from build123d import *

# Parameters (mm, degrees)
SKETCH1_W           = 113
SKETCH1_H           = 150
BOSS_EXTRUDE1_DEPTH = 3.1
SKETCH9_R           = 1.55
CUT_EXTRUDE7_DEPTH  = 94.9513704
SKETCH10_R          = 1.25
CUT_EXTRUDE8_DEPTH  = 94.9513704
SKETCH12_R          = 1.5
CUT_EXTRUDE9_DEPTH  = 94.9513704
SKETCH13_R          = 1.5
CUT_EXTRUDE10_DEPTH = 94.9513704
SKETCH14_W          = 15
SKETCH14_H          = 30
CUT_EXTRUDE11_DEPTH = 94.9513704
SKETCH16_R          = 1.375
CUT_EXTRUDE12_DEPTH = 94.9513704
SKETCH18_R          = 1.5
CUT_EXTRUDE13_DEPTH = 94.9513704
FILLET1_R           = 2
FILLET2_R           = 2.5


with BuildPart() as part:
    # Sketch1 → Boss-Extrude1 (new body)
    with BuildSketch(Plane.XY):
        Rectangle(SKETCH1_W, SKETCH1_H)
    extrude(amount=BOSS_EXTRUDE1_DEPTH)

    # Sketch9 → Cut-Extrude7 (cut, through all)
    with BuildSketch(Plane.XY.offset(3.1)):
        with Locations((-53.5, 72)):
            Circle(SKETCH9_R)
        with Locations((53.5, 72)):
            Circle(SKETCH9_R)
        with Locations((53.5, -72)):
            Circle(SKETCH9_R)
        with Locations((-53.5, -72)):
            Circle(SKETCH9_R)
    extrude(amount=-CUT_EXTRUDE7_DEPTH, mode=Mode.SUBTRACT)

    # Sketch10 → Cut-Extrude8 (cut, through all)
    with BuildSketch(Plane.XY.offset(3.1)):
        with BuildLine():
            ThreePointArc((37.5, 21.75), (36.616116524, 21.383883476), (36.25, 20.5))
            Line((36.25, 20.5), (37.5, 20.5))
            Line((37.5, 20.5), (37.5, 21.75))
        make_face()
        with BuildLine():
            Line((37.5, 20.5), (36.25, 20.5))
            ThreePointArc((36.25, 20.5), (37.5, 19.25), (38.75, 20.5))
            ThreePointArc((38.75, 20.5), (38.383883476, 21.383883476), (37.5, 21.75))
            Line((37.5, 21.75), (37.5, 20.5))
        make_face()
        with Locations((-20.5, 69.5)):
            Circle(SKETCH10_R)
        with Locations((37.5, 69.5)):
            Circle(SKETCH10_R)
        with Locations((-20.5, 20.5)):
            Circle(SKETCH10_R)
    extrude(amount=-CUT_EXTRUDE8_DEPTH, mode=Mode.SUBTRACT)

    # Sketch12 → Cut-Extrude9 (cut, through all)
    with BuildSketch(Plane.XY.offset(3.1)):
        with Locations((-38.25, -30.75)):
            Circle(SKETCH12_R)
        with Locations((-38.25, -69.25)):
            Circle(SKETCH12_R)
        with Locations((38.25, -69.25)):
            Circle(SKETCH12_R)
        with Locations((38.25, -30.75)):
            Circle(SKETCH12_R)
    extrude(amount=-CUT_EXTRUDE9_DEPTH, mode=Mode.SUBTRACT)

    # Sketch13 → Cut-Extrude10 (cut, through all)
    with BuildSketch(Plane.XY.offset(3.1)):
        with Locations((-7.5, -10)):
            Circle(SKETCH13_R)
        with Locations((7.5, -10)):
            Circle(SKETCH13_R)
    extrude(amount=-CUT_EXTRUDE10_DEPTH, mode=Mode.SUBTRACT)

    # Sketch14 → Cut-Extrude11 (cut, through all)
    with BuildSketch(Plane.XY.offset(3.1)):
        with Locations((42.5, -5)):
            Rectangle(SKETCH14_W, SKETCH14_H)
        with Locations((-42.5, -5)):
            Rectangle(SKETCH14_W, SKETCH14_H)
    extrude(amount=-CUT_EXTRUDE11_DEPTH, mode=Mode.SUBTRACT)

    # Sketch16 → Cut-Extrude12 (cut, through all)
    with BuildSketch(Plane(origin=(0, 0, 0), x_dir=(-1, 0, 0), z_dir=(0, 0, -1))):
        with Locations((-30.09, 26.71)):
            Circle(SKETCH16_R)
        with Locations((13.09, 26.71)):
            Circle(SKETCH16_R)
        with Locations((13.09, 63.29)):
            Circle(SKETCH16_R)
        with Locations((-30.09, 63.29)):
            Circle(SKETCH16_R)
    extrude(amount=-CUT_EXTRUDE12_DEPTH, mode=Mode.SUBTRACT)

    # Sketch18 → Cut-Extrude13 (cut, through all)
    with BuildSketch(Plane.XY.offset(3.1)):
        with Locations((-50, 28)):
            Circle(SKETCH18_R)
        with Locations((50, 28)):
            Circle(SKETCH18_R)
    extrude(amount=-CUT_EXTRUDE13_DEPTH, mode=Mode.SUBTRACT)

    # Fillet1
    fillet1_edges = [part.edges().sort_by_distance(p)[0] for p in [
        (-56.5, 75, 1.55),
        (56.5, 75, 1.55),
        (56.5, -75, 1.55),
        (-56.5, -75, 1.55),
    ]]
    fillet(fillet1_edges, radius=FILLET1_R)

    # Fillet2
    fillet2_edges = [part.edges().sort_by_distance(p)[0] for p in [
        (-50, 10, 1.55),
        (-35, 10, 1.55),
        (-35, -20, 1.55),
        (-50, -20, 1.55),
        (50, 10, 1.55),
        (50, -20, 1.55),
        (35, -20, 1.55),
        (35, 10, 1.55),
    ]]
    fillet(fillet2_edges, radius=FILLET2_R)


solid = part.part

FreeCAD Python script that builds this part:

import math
import FreeCAD as App
import Part
import Sketcher

V = App.Vector
Q = App.Units.Quantity


def edges_at(feature, points):
    """Names of the edges that pass closest to the given points."""
    edges = feature.Shape.Edges
    near = lambda p: min(range(len(edges)), key=lambda i: edges[i].distToShape(Part.Vertex(*p))[0])
    return sorted({f"Edge{near(p) + 1}" for p in points})

doc = App.newDocument("Part")
params = doc.addObject("Spreadsheet::Sheet", "Params")
for row, (alias, value) in enumerate([
    ("sketch1_width", "113 mm"),
    ("sketch1_height", "150 mm"),
    ("pad1_length", "3.1 mm"),
    ("sketch2_diameter", "3.1 mm"),
    ("sketch3_diameter", "2.5 mm"),
    ("sketch4_diameter", "3 mm"),
    ("sketch5_diameter", "3 mm"),
    ("sketch6_width", "15 mm"),
    ("sketch6_height", "30 mm"),
    ("sketch7_diameter", "2.75 mm"),
    ("sketch8_diameter", "3 mm"),
    ("fillet_radius", "2 mm"),
    ("fillet2_radius", "2.5 mm"),
], start=1):
    params.set(f"A{row}", alias)
    params.set(f"B{row}", "=" + value)
    params.setAlias(f"B{row}", alias)

body = doc.addObject("PartDesign::Body", "Body")

# Sketch on XY plane
sketch1 = body.newObject("Sketcher::SketchObject", "Sketch")
sketch1.AttachmentSupport = (doc.getObject("XY_Plane"), [""])
sketch1.MapMode = "FlatFace"
sketch1.addGeometry([
    Part.LineSegment(V(-56.5, 75, 0), V(-56.5, -75, 0)),
    Part.LineSegment(V(-56.5, -75, 0), V(56.5, -75, 0)),
    Part.LineSegment(V(56.5, -75, 0), V(56.5, 75, 0)),
    Part.LineSegment(V(56.5, 75, 0), V(-56.5, 75, 0)),
], False)
sketch1.addConstraint([
    Sketcher.Constraint("Coincident", 0, 2, 1, 1),
    Sketcher.Constraint("Coincident", 1, 2, 2, 1),
    Sketcher.Constraint("Coincident", 2, 2, 3, 1),
    Sketcher.Constraint("Coincident", 3, 2, 0, 1),
    Sketcher.Constraint("Vertical", 0),
    Sketcher.Constraint("Horizontal", 1),
    Sketcher.Constraint("Vertical", 2),
    Sketcher.Constraint("Horizontal", 3),
    Sketcher.Constraint("Symmetric", 0, 2, 2, 2, -1, 1),
    Sketcher.Constraint("DistanceX", 1, 1, 1, 2, Q("113 mm")),
    Sketcher.Constraint("DistanceY", 0, 2, 0, 1, Q("150 mm")),
])
sketch1.setExpression("Constraints[9]", "Params.sketch1_width")
sketch1.setExpression("Constraints[10]", "Params.sketch1_height")
pad1 = body.newObject("PartDesign::Pad", "Pad")
pad1.Profile = sketch1
pad1.setExpression("Length", "Params.pad1_length")

# Sketch on XY plane
sketch2 = body.newObject("Sketcher::SketchObject", "Sketch001")
sketch2.AttachmentSupport = (doc.getObject("XY_Plane"), [""])
sketch2.MapMode = "FlatFace"
sketch2.AttachmentOffset = App.Placement(V(0, 0, 3.1), App.Rotation())
sketch2.addGeometry([
    Part.Circle(V(-53.5, 72, 0), V(0, 0, 1), 1.55),
    Part.Circle(V(53.5, 72, 0), V(0, 0, 1), 1.55),
    Part.Circle(V(53.5, -72, 0), V(0, 0, 1), 1.55),
    Part.Circle(V(-53.5, -72, 0), V(0, 0, 1), 1.55),
], False)
sketch2.addConstraint([
    Sketcher.Constraint("Equal", 0, 1),
    Sketcher.Constraint("Equal", 1, 2),
    Sketcher.Constraint("Equal", 2, 3),
    Sketcher.Constraint("Symmetric", 0, 3, 2, 3, -1, 1),
    Sketcher.Constraint("Symmetric", 1, 3, 3, 3, -1, 1),
    Sketcher.Constraint("Symmetric", 0, 3, 1, 3, -2),
    Sketcher.Constraint("Diameter", 0, Q("3.1 mm")),
    Sketcher.Constraint("DistanceY", -1, 1, 0, 3, Q("72 mm")),
    Sketcher.Constraint("DistanceX", 0, 3, 1, 3, Q("107 mm")),
])
sketch2.setExpression("Constraints[6]", "Params.sketch2_diameter")
pocket1 = body.newObject("PartDesign::Pocket", "Pocket")
pocket1.Profile = sketch2
pocket1.Type = "ThroughAll"

# Sketch on XY plane
sketch3 = body.newObject("Sketcher::SketchObject", "Sketch002")
sketch3.AttachmentSupport = (doc.getObject("XY_Plane"), [""])
sketch3.MapMode = "FlatFace"
sketch3.AttachmentOffset = App.Placement(V(0, 0, 3.1), App.Rotation())
sketch3.addGeometry([
    Part.ArcOfCircle(Part.Circle(V(37.5, 20.5, 0), V(0, 0, 1), 1.25), math.radians(90), math.radians(180)),  # 0
    Part.ArcOfCircle(Part.Circle(V(37.5, 20.5, 0), V(0, 0, 1), 1.25), math.radians(180), math.radians(360)),  # 1
    Part.ArcOfCircle(Part.Circle(V(37.5, 20.5, 0), V(0, 0, 1), 1.25), math.radians(0), math.radians(90)),  # 2
    Part.Circle(V(-20.5, 69.5, 0), V(0, 0, 1), 1.25),  # 3
    Part.Circle(V(37.5, 69.5, 0), V(0, 0, 1), 1.25),  # 4
    Part.Circle(V(-20.5, 20.5, 0), V(0, 0, 1), 1.25),  # 5
], False)
sketch3.addConstraint([
    Sketcher.Constraint("Tangent", 0, 2, 1, 1),
    Sketcher.Constraint("Tangent", 1, 2, 2, 1),
    Sketcher.Constraint("Tangent", 2, 2, 0, 1),
    Sketcher.Constraint("Equal", 2, 3),
    Sketcher.Constraint("Equal", 3, 4),
    Sketcher.Constraint("Equal", 4, 5),
    Sketcher.Constraint("Horizontal", 3, 3, 4, 3),
    Sketcher.Constraint("Horizontal", 2, 3, 5, 3),
    Sketcher.Constraint("Horizontal", 5, 3, 0, 2),
    Sketcher.Constraint("Horizontal", 0, 2, 1, 2),
    Sketcher.Constraint("Vertical", 2, 3, 4, 3),
    Sketcher.Constraint("Vertical", 3, 3, 5, 3),
    Sketcher.Constraint("Vertical", 4, 3, 2, 2),
    Sketcher.Constraint("Diameter", 3, Q("2.5 mm")),
    Sketcher.Constraint("DistanceX", 3, 3, 2, 3, Q("58 mm")),
    Sketcher.Constraint("DistanceY", 2, 3, 3, 3, Q("49 mm")),
    Sketcher.Constraint("DistanceX", -1, 1, 0, 3, Q("37.5 mm")),
    Sketcher.Constraint("DistanceY", -1, 1, 0, 3, Q("20.5 mm")),
])
sketch3.setExpression("Constraints[13]", "Params.sketch3_diameter")
pocket2 = body.newObject("PartDesign::Pocket", "Pocket001")
pocket2.Profile = sketch3
pocket2.Type = "ThroughAll"

# Sketch on XY plane
sketch4 = body.newObject("Sketcher::SketchObject", "Sketch003")
sketch4.AttachmentSupport = (doc.getObject("XY_Plane"), [""])
sketch4.MapMode = "FlatFace"
sketch4.AttachmentOffset = App.Placement(V(0, 0, 3.1), App.Rotation())
sketch4.addGeometry([
    Part.Circle(V(-38.25, -30.75, 0), V(0, 0, 1), 1.5),
    Part.Circle(V(-38.25, -69.25, 0), V(0, 0, 1), 1.5),
    Part.Circle(V(38.25, -69.25, 0), V(0, 0, 1), 1.5),
    Part.Circle(V(38.25, -30.75, 0), V(0, 0, 1), 1.5),
], False)
sketch4.addConstraint([
    Sketcher.Constraint("Equal", 0, 1),
    Sketcher.Constraint("Equal", 1, 2),
    Sketcher.Constraint("Equal", 2, 3),
    Sketcher.Constraint("Symmetric", 1, 3, 2, 3, -2),
    Sketcher.Constraint("Symmetric", 0, 3, 3, 3, -2),
    Sketcher.Constraint("Vertical", 0, 3, 1, 3),
    Sketcher.Constraint("Diameter", 0, Q("3 mm")),
    Sketcher.Constraint("DistanceY", 1, 3, 0, 3, Q("38.5 mm")),
    Sketcher.Constraint("DistanceX", 1, 3, 2, 3, Q("76.5 mm")),
    Sketcher.Constraint("DistanceY", 0, 3, -1, 1, Q("30.75 mm")),
])
sketch4.setExpression("Constraints[6]", "Params.sketch4_diameter")
pocket3 = body.newObject("PartDesign::Pocket", "Pocket002")
pocket3.Profile = sketch4
pocket3.Type = "ThroughAll"

# Sketch on XY plane
sketch5 = body.newObject("Sketcher::SketchObject", "Sketch004")
sketch5.AttachmentSupport = (doc.getObject("XY_Plane"), [""])
sketch5.MapMode = "FlatFace"
sketch5.AttachmentOffset = App.Placement(V(0, 0, 3.1), App.Rotation())
sketch5.addGeometry([
    Part.Circle(V(-7.5, -10, 0), V(0, 0, 1), 1.5),
    Part.Circle(V(7.5, -10, 0), V(0, 0, 1), 1.5),
], False)
sketch5.addConstraint([
    Sketcher.Constraint("Equal", 0, 1),
    Sketcher.Constraint("Symmetric", 0, 3, 1, 3, -2),
    Sketcher.Constraint("Diameter", 0, Q("3 mm")),
    Sketcher.Constraint("DistanceY", 0, 3, -1, 1, Q("10 mm")),
    Sketcher.Constraint("DistanceX", 0, 3, 1, 3, Q("15 mm")),
])
sketch5.setExpression("Constraints[2]", "Params.sketch5_diameter")
pocket4 = body.newObject("PartDesign::Pocket", "Pocket003")
pocket4.Profile = sketch5
pocket4.Type = "ThroughAll"

# Sketch on XY plane
sketch6 = body.newObject("Sketcher::SketchObject", "Sketch005")
sketch6.AttachmentSupport = (doc.getObject("XY_Plane"), [""])
sketch6.MapMode = "FlatFace"
sketch6.AttachmentOffset = App.Placement(V(0, 0, 3.1), App.Rotation())
sketch6.addGeometry([
    Part.LineSegment(V(35, 10, 0), V(35, -20, 0)),  # 0
    Part.LineSegment(V(35, -20, 0), V(50, -20, 0)),  # 1
    Part.LineSegment(V(50, -20, 0), V(50, 10, 0)),  # 2
    Part.LineSegment(V(50, 10, 0), V(35, 10, 0)),  # 3
    Part.LineSegment(V(-50, 10, 0), V(-50, -20, 0)),  # 4
    Part.LineSegment(V(-50, -20, 0), V(-35, -20, 0)),  # 5
    Part.LineSegment(V(-35, -20, 0), V(-35, 10, 0)),  # 6
    Part.LineSegment(V(-35, 10, 0), V(-50, 10, 0)),  # 7
], False)
sketch6.addConstraint([
    Sketcher.Constraint("Coincident", 0, 2, 1, 1),
    Sketcher.Constraint("Coincident", 1, 2, 2, 1),
    Sketcher.Constraint("Coincident", 2, 2, 3, 1),
    Sketcher.Constraint("Coincident", 3, 2, 0, 1),
    Sketcher.Constraint("Coincident", 4, 2, 5, 1),
    Sketcher.Constraint("Coincident", 5, 2, 6, 1),
    Sketcher.Constraint("Coincident", 6, 2, 7, 1),
    Sketcher.Constraint("Coincident", 7, 2, 4, 1),
    Sketcher.Constraint("Vertical", 0),
    Sketcher.Constraint("Horizontal", 1),
    Sketcher.Constraint("Vertical", 2),
    Sketcher.Constraint("Horizontal", 3),
    Sketcher.Constraint("Vertical", 4),
    Sketcher.Constraint("Horizontal", 5),
    Sketcher.Constraint("Vertical", 6),
    Sketcher.Constraint("Horizontal", 7),
    Sketcher.Constraint("Symmetric", 1, 2, 4, 2, -2),
    Sketcher.Constraint("Symmetric", 3, 2, 6, 2, -2),
    Sketcher.Constraint("DistanceX", 1, 1, 1, 2, Q("15 mm")),
    Sketcher.Constraint("DistanceY", 0, 2, 0, 1, Q("30 mm")),
    Sketcher.Constraint("DistanceX", -1, 1, 0, 2, Q("35 mm")),
    Sketcher.Constraint("DistanceY", 0, 2, -1, 1, Q("20 mm")),
])
sketch6.setExpression("Constraints[18]", "Params.sketch6_width")
sketch6.setExpression("Constraints[19]", "Params.sketch6_height")
pocket5 = body.newObject("PartDesign::Pocket", "Pocket004")
pocket5.Profile = sketch6
pocket5.Type = "ThroughAll"

# Sketch on XY plane
sketch7 = body.newObject("Sketcher::SketchObject", "Sketch006")
sketch7.AttachmentSupport = (doc.getObject("XY_Plane"), [""])
sketch7.MapMode = "FlatFace"
sketch7.addGeometry([
    Part.Circle(V(30.09, 26.71, 0), V(0, 0, 1), 1.375),
    Part.Circle(V(-13.09, 26.71, 0), V(0, 0, 1), 1.375),
    Part.Circle(V(-13.09, 63.29, 0), V(0, 0, 1), 1.375),
    Part.Circle(V(30.09, 63.29, 0), V(0, 0, 1), 1.375),
], False)
sketch7.addConstraint([
    Sketcher.Constraint("Equal", 0, 1),
    Sketcher.Constraint("Equal", 1, 2),
    Sketcher.Constraint("Equal", 2, 3),
    Sketcher.Constraint("Horizontal", 0, 3, 1, 3),
    Sketcher.Constraint("Horizontal", 2, 3, 3, 3),
    Sketcher.Constraint("Vertical", 1, 3, 2, 3),
    Sketcher.Constraint("Vertical", 0, 3, 3, 3),
    Sketcher.Constraint("Diameter", 0, Q("2.75 mm")),
    Sketcher.Constraint("DistanceX", -1, 1, 0, 3, Q("30.09 mm")),
    Sketcher.Constraint("DistanceY", -1, 1, 0, 3, Q("26.71 mm")),
    Sketcher.Constraint("DistanceX", 1, 3, -1, 1, Q("13.09 mm")),
    Sketcher.Constraint("DistanceY", -1, 1, 2, 3, Q("63.29 mm")),
])
sketch7.setExpression("Constraints[7]", "Params.sketch7_diameter")
pocket6 = body.newObject("PartDesign::Pocket", "Pocket005")
pocket6.Profile = sketch7
pocket6.Type = "ThroughAll"
pocket6.Reversed = True

# Sketch on XY plane
sketch8 = body.newObject("Sketcher::SketchObject", "Sketch007")
sketch8.AttachmentSupport = (doc.getObject("XY_Plane"), [""])
sketch8.MapMode = "FlatFace"
sketch8.AttachmentOffset = App.Placement(V(0, 0, 3.1), App.Rotation())
sketch8.addGeometry([
    Part.Circle(V(-50, 28, 0), V(0, 0, 1), 1.5),
    Part.Circle(V(50, 28, 0), V(0, 0, 1), 1.5),
], False)
sketch8.addConstraint([
    Sketcher.Constraint("Equal", 0, 1),
    Sketcher.Constraint("Symmetric", 0, 3, 1, 3, -2),
    Sketcher.Constraint("Diameter", 0, Q("3 mm")),
    Sketcher.Constraint("DistanceX", 0, 3, -1, 1, Q("50 mm")),
    Sketcher.Constraint("DistanceY", -1, 1, 0, 3, Q("28 mm")),
])
sketch8.setExpression("Constraints[2]", "Params.sketch8_diameter")
pocket7 = body.newObject("PartDesign::Pocket", "Pocket006")
pocket7.Profile = sketch8
pocket7.Type = "ThroughAll"
doc.recompute()

fillet = body.newObject("PartDesign::Fillet", "Fillet")
fillet.Base = (pocket7, edges_at(pocket7, [
    (-56.5, 75, 1.55),
    (56.5, 75, 1.55),
    (56.5, -75, 1.55),
    (-56.5, -75, 1.55),
]))
fillet.setExpression("Radius", "Params.fillet_radius")
doc.recompute()

fillet2 = body.newObject("PartDesign::Fillet", "Fillet001")
fillet2.Base = (fillet, edges_at(fillet, [
    (-50, 10, 1.55),
    (-35, 10, 1.55),
    (-35, -20, 1.55),
    (-50, -20, 1.55),
    (50, 10, 1.55),
    (50, -20, 1.55),
    (35, -20, 1.55),
    (35, 10, 1.55),
]))
fillet2.setExpression("Radius", "Params.fillet2_radius")

doc.recompute()
